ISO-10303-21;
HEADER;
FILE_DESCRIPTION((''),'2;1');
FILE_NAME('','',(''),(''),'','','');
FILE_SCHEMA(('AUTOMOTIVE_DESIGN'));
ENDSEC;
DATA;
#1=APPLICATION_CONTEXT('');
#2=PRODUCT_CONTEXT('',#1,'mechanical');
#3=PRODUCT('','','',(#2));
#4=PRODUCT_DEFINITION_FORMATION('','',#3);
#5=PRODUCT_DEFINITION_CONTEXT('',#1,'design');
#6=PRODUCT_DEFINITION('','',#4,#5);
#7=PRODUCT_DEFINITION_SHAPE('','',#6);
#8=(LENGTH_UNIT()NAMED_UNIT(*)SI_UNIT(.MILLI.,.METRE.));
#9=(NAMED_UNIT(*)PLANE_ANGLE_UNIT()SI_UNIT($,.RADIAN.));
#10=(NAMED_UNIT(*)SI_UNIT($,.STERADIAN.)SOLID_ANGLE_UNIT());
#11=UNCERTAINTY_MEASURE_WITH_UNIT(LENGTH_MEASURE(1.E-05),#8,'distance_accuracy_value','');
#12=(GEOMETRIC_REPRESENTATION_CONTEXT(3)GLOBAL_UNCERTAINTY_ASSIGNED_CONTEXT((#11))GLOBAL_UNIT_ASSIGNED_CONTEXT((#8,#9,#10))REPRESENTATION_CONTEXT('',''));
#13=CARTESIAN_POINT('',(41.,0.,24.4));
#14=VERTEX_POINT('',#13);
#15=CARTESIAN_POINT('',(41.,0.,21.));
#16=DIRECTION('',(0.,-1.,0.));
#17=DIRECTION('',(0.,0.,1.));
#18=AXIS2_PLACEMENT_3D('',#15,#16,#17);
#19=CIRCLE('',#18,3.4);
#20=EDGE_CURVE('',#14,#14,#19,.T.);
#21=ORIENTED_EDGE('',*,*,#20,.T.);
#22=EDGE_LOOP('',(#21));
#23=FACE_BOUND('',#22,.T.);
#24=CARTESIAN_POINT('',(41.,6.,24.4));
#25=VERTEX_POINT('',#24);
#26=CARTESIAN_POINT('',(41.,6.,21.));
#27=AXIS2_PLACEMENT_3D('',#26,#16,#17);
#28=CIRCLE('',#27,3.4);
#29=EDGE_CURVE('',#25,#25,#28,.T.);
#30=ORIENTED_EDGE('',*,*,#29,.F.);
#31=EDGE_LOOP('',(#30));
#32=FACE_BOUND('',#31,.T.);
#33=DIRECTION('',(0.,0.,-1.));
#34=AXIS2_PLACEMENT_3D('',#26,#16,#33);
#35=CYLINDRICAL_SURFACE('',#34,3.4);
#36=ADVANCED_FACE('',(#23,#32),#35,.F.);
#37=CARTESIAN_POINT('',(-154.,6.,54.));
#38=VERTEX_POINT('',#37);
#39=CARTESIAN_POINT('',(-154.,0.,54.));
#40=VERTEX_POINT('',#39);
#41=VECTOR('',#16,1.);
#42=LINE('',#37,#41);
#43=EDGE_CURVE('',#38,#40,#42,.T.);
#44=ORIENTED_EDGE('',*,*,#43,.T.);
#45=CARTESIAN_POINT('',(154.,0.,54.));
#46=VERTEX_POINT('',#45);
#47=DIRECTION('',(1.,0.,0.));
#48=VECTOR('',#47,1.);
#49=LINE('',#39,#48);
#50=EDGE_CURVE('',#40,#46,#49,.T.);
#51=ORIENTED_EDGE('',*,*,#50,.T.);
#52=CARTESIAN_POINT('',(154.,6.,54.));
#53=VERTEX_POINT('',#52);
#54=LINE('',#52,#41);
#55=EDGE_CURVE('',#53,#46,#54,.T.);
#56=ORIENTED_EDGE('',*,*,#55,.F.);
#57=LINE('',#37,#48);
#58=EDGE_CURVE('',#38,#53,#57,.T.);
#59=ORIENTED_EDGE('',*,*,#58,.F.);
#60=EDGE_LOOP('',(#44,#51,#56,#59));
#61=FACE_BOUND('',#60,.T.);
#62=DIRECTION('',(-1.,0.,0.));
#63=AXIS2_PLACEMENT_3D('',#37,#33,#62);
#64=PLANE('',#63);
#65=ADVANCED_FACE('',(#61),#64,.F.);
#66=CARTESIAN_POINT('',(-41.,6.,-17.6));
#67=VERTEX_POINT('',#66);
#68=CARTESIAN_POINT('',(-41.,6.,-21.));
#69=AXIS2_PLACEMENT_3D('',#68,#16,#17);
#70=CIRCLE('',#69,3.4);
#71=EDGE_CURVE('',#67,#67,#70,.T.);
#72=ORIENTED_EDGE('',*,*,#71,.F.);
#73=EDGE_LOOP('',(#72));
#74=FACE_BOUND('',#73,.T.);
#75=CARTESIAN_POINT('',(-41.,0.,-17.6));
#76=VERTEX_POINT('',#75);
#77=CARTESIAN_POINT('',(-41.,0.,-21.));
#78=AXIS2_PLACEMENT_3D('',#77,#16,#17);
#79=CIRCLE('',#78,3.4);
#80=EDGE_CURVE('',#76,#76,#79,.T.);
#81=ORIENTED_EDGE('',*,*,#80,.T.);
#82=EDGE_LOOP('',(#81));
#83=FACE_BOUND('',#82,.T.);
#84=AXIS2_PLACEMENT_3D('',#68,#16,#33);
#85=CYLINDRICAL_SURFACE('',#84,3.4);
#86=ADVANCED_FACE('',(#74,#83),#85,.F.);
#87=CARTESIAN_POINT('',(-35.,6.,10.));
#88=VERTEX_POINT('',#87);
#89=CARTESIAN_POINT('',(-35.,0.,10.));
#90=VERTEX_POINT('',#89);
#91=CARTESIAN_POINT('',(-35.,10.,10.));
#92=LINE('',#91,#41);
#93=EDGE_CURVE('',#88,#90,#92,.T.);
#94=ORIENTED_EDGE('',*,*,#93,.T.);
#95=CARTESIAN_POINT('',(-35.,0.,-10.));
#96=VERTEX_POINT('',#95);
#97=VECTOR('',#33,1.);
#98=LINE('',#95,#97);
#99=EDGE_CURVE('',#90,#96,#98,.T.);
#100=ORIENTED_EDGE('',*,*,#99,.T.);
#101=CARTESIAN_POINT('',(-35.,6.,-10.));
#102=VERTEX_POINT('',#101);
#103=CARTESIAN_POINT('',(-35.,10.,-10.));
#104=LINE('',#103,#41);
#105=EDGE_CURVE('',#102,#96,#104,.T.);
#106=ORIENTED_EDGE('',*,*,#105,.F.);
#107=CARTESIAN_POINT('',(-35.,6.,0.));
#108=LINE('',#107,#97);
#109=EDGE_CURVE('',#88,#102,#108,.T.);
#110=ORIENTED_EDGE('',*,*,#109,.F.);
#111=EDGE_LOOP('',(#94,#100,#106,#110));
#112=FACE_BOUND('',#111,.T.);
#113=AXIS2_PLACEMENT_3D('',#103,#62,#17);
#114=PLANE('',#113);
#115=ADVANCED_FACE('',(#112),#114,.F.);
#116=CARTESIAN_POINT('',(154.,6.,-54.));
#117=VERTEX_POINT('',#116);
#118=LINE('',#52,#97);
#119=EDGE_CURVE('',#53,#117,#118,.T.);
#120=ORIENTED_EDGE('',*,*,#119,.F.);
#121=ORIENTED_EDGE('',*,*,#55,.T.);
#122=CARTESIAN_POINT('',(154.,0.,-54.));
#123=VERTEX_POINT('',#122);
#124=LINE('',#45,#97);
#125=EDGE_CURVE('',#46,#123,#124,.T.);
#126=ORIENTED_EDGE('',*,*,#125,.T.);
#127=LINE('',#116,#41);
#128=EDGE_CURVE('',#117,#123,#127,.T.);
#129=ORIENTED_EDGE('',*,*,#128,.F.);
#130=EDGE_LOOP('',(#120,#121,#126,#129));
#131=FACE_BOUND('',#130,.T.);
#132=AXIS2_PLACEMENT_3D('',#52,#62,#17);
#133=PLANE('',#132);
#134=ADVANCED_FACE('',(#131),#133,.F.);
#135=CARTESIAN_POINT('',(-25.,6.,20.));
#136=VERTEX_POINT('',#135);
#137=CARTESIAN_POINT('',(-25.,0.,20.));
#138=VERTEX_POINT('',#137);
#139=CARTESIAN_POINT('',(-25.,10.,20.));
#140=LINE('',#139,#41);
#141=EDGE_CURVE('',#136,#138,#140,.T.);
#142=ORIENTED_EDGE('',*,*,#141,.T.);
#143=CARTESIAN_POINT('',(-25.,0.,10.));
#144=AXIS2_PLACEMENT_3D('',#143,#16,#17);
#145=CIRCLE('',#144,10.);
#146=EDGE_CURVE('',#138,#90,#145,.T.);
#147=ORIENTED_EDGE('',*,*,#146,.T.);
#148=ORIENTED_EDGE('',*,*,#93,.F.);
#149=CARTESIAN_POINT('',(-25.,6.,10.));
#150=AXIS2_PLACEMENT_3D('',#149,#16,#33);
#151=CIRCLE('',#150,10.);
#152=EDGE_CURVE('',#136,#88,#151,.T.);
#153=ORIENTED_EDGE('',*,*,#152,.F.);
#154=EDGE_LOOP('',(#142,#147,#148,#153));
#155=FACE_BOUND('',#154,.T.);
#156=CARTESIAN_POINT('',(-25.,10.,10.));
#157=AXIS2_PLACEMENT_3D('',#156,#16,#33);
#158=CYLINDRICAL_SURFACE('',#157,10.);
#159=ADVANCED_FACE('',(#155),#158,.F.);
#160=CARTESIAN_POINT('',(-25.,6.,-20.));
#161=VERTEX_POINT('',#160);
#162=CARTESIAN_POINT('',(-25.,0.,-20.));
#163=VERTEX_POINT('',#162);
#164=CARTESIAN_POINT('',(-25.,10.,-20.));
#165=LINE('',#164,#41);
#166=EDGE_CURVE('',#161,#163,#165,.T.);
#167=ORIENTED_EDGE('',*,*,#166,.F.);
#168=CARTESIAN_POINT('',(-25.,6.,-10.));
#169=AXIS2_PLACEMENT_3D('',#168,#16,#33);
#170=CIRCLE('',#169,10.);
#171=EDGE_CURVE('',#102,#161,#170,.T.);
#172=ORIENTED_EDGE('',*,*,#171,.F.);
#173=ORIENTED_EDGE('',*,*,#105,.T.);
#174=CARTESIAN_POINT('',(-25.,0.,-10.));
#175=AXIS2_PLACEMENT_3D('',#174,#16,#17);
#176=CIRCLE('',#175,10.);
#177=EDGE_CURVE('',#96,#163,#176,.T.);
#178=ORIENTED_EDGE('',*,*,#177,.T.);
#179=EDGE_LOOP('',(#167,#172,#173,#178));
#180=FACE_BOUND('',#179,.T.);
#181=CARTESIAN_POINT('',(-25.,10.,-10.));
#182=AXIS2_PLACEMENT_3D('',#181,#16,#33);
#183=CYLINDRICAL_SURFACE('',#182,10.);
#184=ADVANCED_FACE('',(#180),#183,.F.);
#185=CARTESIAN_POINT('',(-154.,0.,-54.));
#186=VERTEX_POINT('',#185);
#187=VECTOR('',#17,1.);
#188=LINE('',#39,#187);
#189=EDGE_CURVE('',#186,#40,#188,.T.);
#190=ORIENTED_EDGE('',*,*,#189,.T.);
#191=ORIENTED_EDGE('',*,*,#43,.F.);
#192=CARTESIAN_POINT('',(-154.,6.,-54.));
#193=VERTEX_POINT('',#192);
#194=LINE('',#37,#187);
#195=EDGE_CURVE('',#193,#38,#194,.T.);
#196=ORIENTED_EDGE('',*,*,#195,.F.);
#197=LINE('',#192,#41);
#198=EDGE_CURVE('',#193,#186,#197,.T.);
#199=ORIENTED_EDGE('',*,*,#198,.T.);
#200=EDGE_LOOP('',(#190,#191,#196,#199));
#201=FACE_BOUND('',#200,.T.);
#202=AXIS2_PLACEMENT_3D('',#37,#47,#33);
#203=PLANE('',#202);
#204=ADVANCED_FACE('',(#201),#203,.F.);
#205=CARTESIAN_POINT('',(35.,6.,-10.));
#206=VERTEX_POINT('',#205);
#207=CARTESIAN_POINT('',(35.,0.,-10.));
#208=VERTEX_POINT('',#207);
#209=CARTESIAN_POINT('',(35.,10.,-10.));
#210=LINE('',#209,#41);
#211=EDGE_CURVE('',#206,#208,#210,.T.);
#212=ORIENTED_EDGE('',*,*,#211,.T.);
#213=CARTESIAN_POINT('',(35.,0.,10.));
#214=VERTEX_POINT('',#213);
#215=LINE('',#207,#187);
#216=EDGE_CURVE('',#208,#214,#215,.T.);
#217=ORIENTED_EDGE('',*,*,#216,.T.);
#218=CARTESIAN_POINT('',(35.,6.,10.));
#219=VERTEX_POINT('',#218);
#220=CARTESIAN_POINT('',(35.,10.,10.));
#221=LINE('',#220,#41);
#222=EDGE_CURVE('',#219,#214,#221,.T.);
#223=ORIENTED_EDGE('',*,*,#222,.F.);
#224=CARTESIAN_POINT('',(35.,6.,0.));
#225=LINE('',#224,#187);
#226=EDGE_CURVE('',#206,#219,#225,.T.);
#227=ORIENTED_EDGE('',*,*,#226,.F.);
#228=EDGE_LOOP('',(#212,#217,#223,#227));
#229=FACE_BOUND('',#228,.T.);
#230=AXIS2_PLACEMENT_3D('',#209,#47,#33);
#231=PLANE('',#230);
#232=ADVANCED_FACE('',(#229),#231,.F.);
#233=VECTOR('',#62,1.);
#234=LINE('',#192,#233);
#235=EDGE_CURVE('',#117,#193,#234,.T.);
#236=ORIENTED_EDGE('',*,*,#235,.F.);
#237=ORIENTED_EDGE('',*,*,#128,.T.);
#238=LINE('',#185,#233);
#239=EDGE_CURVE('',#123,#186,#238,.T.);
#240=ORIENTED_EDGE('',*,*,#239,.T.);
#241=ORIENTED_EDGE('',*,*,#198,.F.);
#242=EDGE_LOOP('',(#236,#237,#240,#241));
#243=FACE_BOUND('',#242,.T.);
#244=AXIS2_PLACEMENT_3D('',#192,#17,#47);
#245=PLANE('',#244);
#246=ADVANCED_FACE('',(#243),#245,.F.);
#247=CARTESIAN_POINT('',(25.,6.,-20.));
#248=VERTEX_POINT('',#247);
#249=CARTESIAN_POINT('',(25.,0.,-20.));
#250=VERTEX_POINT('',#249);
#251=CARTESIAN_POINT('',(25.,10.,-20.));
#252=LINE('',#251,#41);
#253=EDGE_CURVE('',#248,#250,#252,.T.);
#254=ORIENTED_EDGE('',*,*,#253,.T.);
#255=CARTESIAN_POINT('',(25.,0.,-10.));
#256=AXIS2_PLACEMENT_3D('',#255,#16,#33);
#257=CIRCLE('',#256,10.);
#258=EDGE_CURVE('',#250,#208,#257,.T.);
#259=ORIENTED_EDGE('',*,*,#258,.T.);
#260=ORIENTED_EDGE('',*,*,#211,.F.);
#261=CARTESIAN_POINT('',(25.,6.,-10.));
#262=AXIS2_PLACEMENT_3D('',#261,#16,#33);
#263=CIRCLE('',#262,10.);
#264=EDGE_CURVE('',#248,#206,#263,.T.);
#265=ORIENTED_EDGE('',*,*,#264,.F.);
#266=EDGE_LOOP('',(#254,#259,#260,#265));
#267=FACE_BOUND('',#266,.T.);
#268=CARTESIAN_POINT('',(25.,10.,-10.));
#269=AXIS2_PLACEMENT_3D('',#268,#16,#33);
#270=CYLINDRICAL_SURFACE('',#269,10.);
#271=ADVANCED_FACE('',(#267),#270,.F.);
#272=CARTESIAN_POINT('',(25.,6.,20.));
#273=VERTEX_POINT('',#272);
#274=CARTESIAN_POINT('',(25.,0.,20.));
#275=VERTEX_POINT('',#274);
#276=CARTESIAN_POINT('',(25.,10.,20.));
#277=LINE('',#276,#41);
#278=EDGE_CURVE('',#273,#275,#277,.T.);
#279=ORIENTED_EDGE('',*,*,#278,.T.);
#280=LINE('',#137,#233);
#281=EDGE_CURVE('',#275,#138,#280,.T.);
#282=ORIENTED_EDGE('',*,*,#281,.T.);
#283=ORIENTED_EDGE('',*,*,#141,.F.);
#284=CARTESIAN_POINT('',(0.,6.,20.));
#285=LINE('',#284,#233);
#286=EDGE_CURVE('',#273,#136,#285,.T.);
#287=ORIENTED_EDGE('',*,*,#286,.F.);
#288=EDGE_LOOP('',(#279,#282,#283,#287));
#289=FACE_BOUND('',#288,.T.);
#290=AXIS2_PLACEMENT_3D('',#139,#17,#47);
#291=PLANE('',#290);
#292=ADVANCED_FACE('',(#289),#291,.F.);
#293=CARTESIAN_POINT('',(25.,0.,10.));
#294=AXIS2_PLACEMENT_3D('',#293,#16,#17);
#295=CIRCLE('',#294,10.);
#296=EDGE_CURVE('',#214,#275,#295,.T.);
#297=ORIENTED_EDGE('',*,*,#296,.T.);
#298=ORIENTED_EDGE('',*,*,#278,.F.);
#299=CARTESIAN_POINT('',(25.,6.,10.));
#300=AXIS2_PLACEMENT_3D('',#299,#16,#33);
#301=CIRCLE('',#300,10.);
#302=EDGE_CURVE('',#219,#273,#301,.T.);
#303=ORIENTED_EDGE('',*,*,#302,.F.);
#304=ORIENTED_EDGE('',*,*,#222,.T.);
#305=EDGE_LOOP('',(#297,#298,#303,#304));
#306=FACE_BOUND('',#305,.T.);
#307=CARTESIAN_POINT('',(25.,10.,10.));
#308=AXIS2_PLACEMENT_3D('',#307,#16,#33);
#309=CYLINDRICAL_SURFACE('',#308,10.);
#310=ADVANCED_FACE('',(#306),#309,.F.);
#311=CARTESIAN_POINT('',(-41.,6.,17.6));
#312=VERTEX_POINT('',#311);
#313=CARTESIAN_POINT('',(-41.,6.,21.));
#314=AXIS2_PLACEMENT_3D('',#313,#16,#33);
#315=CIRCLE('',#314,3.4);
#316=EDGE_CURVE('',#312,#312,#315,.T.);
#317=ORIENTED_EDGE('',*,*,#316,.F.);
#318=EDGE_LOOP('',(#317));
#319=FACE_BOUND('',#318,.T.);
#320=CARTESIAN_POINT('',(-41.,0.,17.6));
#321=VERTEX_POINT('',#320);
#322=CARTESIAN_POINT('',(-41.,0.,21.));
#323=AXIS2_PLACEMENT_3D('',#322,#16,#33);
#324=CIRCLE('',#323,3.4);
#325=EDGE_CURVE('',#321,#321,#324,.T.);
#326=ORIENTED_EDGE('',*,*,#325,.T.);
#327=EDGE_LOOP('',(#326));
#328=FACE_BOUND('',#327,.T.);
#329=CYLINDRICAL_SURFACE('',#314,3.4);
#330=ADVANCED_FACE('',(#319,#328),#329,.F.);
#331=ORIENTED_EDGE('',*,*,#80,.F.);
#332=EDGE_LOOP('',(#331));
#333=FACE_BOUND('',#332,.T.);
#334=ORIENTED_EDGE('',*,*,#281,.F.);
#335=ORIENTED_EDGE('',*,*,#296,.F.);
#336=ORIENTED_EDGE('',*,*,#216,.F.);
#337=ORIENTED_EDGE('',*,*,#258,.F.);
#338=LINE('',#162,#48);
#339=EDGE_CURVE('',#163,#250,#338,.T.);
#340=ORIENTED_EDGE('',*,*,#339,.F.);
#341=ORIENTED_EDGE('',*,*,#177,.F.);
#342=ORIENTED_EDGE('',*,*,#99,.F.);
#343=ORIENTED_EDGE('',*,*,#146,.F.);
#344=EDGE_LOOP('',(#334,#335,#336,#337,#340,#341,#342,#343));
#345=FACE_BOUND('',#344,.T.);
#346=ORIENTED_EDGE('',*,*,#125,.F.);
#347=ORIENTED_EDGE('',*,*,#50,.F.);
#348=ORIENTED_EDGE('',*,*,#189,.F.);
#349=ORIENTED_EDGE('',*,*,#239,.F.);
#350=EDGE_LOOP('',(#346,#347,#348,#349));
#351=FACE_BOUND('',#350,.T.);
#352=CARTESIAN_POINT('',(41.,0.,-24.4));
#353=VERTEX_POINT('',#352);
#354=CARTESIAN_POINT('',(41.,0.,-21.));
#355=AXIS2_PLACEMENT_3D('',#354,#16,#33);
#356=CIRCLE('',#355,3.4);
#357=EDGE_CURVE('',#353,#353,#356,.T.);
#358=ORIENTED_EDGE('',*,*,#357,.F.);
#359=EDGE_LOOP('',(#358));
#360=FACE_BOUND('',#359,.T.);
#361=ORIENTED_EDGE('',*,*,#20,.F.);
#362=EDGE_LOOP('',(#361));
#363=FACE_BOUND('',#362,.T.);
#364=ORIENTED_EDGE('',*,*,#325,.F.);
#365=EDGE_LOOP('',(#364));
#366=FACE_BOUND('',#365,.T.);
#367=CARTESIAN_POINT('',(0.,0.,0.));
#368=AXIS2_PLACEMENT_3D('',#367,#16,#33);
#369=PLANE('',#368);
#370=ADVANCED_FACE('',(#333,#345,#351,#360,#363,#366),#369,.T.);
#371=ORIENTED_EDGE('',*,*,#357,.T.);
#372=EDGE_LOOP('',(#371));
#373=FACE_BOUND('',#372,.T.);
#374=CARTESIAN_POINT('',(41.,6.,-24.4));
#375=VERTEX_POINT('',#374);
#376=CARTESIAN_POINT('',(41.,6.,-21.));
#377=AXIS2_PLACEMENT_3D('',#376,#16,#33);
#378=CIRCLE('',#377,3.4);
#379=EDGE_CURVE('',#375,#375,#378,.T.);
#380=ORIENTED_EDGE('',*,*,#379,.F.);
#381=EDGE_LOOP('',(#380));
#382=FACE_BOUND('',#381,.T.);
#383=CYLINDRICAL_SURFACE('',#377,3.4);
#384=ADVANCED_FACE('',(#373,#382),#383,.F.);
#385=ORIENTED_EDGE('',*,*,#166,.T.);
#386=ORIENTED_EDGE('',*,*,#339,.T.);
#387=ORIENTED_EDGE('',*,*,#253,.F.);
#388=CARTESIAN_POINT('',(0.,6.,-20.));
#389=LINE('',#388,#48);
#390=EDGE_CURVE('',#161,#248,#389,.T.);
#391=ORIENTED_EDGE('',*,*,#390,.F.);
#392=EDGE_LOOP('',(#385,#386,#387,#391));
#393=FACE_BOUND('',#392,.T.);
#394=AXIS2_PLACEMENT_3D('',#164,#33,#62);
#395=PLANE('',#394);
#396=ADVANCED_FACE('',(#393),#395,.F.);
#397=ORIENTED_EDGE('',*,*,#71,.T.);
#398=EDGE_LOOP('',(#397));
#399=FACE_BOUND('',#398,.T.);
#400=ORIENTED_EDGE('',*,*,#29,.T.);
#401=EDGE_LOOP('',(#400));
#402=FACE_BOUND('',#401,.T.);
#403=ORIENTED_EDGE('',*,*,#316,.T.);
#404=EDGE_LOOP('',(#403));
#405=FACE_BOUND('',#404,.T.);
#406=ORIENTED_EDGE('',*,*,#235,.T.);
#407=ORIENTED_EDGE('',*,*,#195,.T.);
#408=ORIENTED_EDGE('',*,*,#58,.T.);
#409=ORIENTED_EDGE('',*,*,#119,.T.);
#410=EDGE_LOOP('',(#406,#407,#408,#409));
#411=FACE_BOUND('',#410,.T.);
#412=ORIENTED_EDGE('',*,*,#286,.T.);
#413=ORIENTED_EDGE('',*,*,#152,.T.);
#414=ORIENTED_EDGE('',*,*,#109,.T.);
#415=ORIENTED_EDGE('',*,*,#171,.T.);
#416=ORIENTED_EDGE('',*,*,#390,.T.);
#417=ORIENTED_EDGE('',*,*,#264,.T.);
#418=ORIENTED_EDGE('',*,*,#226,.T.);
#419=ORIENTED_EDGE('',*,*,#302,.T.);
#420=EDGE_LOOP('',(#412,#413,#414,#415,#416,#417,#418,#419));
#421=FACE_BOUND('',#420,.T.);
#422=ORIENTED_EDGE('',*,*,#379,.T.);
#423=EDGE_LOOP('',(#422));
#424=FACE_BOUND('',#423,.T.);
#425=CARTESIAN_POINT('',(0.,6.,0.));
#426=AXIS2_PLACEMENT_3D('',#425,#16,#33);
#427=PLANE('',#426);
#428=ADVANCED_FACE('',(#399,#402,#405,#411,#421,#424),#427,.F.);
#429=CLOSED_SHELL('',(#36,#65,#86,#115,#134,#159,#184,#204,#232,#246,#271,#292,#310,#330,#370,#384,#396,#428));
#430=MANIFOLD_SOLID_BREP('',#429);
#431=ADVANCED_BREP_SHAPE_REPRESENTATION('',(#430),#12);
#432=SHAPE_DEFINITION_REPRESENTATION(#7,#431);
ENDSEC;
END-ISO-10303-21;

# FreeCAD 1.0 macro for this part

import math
import FreeCAD as App
import Part
import Sketcher

V = App.Vector


def add_polygon(sketch, points):
    """Adds a closed chain of lines whose ends are joined by coincident constraints."""
    first, n = sketch.GeometryCount, len(points)
    for a, b in zip(points, points[1:] + points[:1]):
        sketch.addGeometry(Part.LineSegment(App.Vector(*a, 0), App.Vector(*b, 0)), False)
    for i in range(n):
        sketch.addConstraint(Sketcher.Constraint("Coincident", first + i, 2, first + (i + 1) % n, 1))

doc = App.newDocument("Part")
params = doc.addObject("Spreadsheet::Sheet", "Params")
for row, (alias, value) in enumerate([
    ("sketch1_width", "308 mm"),
    ("sketch1_height", "108 mm"),
    ("pad1_length", "6 mm"),
    ("sketch2_radius", "10 mm"),
    ("sketch2_width", "50 mm"),
    ("sketch2_height", "20 mm"),
    ("pocket1_length", "10 mm"),
    ("sketch3_diameter", "6.8 mm"),
], start=1):
    params.set(f"A{row}", alias)
    params.set(f"B{row}", "=" + value)
    params.setAlias(f"B{row}", alias)

body = doc.addObject("PartDesign::Body", "Body")

# Sketch on XZ plane
sketch1 = doc.addObject("Sketcher::SketchObject", "Sketch")
body.addObject(sketch1)
sketch1.AttachmentSupport = (doc.XZ_Plane, [""])
sketch1.MapMode = "FlatFace"
add_polygon(sketch1, [(-154, -54), (-154, 54), (154, 54), (154, -54)])  # lines 0-3
sketch1.addConstraint([
    Sketcher.Constraint("Vertical", 0),
    Sketcher.Constraint("Horizontal", 1),
    Sketcher.Constraint("Vertical", 2),
    Sketcher.Constraint("Horizontal", 3),
    Sketcher.Constraint("Symmetric", 0, 2, 2, 2, -1, 1),
    Sketcher.Constraint("DistanceX", 1, 1, 1, 2, 308.0),
    Sketcher.Constraint("DistanceY", 0, 1, 0, 2, 108.0),
])
sketch1.setExpression("Constraints[9]", "Params.sketch1_width")
sketch1.setExpression("Constraints[10]", "Params.sketch1_height")
pad1 = doc.addObject("PartDesign::Pad", "Pad")
body.addObject(pad1)
pad1.Profile = sketch1
pad1.setExpression("Length", "Params.pad1_length")
pad1.Reversed = True

# Sketch on XZ plane
sketch2 = doc.addObject("Sketcher::SketchObject", "Sketch001")
body.addObject(sketch2)
sketch2.AttachmentSupport = (doc.XZ_Plane, [""])
sketch2.MapMode = "FlatFace"
sketch2.addGeometry([
    Part.LineSegment(V(-25, -20, 0), V(25, -20, 0)),  # 0
    Part.ArcOfCircle(Part.Circle(V(25, -10, 0), V(0, 0, 1), 10), math.radians(-90), math.radians(0)),  # 1
    Part.LineSegment(V(35, -10, 0), V(35, 10, 0)),  # 2
    Part.ArcOfCircle(Part.Circle(V(25, 10, 0), V(0, 0, 1), 10), math.radians(0), math.radians(90)),  # 3
    Part.LineSegment(V(25, 20, 0), V(-25, 20, 0)),  # 4
    Part.ArcOfCircle(Part.Circle(V(-25, 10, 0), V(0, 0, 1), 10), math.radians(90), math.radians(180)),  # 5
    Part.LineSegment(V(-35, 10, 0), V(-35, -10, 0)),  # 6
    Part.ArcOfCircle(Part.Circle(V(-25, -10, 0), V(0, 0, 1), 10), math.radians(180), math.radians(270)),  # 7
], False)
sketch2.addConstraint([
    Sketcher.Constraint("Tangent", 0, 2, 1, 1),
    Sketcher.Constraint("Tangent", 1, 2, 2, 1),
    Sketcher.Constraint("Tangent", 2, 2, 3, 1),
    Sketcher.Constraint("Tangent", 3, 2, 4, 1),
    Sketcher.Constraint("Tangent", 4, 2, 5, 1),
    Sketcher.Constraint("Tangent", 5, 2, 6, 1),
    Sketcher.Constraint("Tangent", 6, 2, 7, 1),
    Sketcher.Constraint("Tangent", 7, 2, 0, 1),
    Sketcher.Constraint("Horizontal", 0),
    Sketcher.Constraint("Vertical", 2),
    Sketcher.Constraint("Horizontal", 4),
    Sketcher.Constraint("Vertical", 6),
    Sketcher.Constraint("Equal", 1, 3),
    Sketcher.Constraint("Equal", 3, 5),
    Sketcher.Constraint("Equal", 5, 7),
    Sketcher.Constraint("Symmetric", 1, 3, 5, 3, -1, 1),
    Sketcher.Constraint("Radius", 1, 10.0),
    Sketcher.Constraint("DistanceX", 0, 1, 0, 2, 50.0),
    Sketcher.Constraint("DistanceY", 2, 1, 2, 2, 20.0),
])
sketch2.setExpression("Constraints[16]", "Params.sketch2_radius")
sketch2.setExpression("Constraints[17]", "Params.sketch2_width")
sketch2.setExpression("Constraints[18]", "Params.sketch2_height")
pocket1 = doc.addObject("PartDesign::Pocket", "Pocket")
body.addObject(pocket1)
pocket1.Profile = sketch2
pocket1.setExpression("Length", "Params.pocket1_length")

# Sketch on XZ plane
sketch3 = doc.addObject("Sketcher::SketchObject", "Sketch002")
body.addObject(sketch3)
sketch3.AttachmentSupport = (doc.XZ_Plane, [""])
sketch3.MapMode = "FlatFace"
sketch3.addGeometry([
    Part.Circle(V(-41, 21, 0), V(0, 0, 1), 3.4),
    Part.Circle(V(41, 21, 0), V(0, 0, 1), 3.4),
    Part.Circle(V(41, -21, 0), V(0, 0, 1), 3.4),
    Part.Circle(V(-41, -21, 0), V(0, 0, 1), 3.4),
], False)
sketch3.addConstraint([
    Sketcher.Constraint("Equal", 0, 1),
    Sketcher.Constraint("Equal", 1, 2),
    Sketcher.Constraint("Equal", 2, 3),
    Sketcher.Constraint("Symmetric", 0, 3, 2, 3, -1, 1),
    Sketcher.Constraint("Symmetric", 1, 3, 3, 3, -1, 1),
    Sketcher.Constraint("Symmetric", 0, 3, 1, 3, -2),
    Sketcher.Constraint("Diameter", 0, 6.8),
    Sketcher.Constraint("DistanceX", 0, 3, -1, 1, 41.0),
    Sketcher.Constraint("DistanceY", -1, 1, 0, 3, 21.0),
])
sketch3.setExpression("Constraints[6]", "Params.sketch3_diameter")
pocket2 = doc.addObject("PartDesign::Pocket", "Pocket001")
body.addObject(pocket2)
pocket2.Profile = sketch3
pocket2.Type = "ThroughAll"

doc.recompute()
